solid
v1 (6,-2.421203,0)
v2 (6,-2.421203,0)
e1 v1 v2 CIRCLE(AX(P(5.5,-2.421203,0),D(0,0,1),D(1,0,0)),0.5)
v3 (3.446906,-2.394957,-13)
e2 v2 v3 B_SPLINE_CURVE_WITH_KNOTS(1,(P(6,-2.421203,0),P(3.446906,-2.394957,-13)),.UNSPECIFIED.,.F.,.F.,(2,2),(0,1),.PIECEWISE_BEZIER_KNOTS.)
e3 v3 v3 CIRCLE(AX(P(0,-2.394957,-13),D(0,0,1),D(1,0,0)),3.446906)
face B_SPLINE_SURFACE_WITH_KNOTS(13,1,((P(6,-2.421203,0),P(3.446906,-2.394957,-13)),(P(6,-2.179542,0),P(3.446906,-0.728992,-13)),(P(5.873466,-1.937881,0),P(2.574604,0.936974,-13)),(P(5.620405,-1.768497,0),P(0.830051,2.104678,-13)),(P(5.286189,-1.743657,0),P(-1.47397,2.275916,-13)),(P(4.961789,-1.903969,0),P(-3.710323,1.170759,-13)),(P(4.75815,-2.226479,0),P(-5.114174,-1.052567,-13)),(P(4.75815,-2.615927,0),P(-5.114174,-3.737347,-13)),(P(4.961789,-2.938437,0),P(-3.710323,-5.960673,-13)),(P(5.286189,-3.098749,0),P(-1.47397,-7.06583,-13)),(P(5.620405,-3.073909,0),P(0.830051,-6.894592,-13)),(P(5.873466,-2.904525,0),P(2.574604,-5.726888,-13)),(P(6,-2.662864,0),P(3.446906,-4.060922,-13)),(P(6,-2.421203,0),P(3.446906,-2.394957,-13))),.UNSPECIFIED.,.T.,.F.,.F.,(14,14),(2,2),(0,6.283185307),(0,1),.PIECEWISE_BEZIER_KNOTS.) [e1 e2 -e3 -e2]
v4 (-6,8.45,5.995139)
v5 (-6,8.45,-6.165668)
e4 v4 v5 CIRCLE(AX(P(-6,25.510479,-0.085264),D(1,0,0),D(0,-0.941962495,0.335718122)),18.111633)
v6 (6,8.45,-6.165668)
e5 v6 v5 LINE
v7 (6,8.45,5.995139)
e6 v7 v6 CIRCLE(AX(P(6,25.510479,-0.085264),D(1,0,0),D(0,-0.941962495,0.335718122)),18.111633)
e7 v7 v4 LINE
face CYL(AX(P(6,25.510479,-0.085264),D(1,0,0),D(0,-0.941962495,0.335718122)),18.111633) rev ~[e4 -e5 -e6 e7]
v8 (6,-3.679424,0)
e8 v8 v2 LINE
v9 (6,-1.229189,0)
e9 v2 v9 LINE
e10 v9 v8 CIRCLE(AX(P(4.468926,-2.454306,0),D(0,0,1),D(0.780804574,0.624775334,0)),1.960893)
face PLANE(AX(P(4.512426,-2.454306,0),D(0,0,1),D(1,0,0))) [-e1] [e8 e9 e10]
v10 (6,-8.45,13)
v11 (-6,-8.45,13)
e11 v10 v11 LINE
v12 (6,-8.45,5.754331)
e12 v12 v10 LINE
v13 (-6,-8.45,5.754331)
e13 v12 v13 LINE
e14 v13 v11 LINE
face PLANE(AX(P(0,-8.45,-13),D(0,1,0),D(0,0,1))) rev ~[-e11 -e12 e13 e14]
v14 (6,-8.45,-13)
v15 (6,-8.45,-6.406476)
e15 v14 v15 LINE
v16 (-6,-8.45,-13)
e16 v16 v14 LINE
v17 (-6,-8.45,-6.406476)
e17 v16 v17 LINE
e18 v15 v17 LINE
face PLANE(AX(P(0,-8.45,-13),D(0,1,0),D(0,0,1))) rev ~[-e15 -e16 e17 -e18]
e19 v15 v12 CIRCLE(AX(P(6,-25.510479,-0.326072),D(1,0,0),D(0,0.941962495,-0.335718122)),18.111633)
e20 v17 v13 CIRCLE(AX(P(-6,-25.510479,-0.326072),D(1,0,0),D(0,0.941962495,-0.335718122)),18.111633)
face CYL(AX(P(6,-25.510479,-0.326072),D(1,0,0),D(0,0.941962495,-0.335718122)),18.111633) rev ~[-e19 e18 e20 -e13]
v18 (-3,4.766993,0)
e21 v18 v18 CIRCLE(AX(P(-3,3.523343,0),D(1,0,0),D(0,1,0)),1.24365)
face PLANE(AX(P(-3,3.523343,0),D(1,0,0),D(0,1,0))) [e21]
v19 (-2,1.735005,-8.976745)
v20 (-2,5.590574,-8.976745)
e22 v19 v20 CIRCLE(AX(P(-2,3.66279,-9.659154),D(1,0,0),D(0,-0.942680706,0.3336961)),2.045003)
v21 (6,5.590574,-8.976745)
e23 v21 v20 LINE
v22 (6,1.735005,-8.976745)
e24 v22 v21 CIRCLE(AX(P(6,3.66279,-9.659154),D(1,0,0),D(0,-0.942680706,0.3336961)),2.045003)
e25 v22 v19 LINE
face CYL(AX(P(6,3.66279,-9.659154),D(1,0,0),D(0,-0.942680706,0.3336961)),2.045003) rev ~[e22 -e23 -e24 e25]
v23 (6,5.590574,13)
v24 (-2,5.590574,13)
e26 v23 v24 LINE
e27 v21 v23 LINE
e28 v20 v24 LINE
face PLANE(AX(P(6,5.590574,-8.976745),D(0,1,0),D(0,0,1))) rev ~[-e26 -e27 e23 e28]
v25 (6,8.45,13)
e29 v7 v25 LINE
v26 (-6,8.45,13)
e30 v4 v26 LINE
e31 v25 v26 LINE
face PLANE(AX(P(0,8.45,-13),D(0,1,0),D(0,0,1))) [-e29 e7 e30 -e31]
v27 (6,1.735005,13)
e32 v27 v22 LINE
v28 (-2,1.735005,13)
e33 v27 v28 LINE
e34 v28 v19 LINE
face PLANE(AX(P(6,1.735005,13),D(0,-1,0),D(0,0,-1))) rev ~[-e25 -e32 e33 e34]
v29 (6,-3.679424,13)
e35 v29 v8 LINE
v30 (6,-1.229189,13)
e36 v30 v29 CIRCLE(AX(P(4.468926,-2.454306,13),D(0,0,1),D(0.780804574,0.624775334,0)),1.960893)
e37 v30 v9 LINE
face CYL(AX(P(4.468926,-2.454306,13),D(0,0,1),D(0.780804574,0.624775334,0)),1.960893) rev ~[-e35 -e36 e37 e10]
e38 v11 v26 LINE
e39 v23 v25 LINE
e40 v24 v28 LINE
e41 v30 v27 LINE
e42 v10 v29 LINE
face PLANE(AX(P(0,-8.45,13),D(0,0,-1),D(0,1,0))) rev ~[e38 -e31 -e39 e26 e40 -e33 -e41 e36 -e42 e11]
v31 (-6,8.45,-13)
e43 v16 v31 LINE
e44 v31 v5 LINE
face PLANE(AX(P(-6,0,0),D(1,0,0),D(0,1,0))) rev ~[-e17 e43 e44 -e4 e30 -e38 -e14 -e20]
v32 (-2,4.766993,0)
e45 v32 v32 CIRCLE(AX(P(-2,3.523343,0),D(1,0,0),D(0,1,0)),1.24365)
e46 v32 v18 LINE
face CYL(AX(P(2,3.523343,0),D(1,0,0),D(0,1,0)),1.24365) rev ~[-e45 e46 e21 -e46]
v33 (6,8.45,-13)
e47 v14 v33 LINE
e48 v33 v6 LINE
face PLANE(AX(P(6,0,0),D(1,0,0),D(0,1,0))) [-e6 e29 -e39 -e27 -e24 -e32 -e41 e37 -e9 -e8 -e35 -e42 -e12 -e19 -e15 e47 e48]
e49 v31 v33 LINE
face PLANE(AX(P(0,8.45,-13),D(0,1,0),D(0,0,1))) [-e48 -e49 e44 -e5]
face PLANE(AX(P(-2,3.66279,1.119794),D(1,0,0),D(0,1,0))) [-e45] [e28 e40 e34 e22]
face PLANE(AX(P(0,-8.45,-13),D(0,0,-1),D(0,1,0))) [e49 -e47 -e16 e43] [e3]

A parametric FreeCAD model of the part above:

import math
import FreeCAD as App
import Part
import Sketcher

V = App.Vector

doc = App.newDocument("Part")
body = doc.addObject("PartDesign::Body", "Body")

# Sketch on YZ plane
sketch1 = body.newObject("Sketcher::SketchObject", "Sketch")
sketch1.AttachmentSupport = (doc.getObject("YZ_Plane"), [""])
sketch1.MapMode = "FlatFace"
sketch1.addGeometry(Part.LineSegment(V(-8, 13, 0), V(-8, -13, 0)), False)
sketch1.addGeometry(Part.LineSegment(V(-8, -13, 0), V(8, -13, 0)), False)
sketch1.addGeometry(Part.LineSegment(V(8, -13, 0), V(8, 13, 0)), False)
sketch1.addGeometry(Part.LineSegment(V(8, 13, 0), V(-8, 13, 0)), False)
sketch1.addConstraint(Sketcher.Constraint("Coincident", 0, 2, 1, 1))
sketch1.addConstraint(Sketcher.Constraint("Coincident", 1, 2, 2, 1))
sketch1.addConstraint(Sketcher.Constraint("Coincident", 2, 2, 3, 1))
sketch1.addConstraint(Sketcher.Constraint("Coincident", 3, 2, 0, 1))
sketch1.addConstraint(Sketcher.Constraint("Vertical", 0))
sketch1.addConstraint(Sketcher.Constraint("Horizontal", 1))
sketch1.addConstraint(Sketcher.Constraint("Vertical", 2))
sketch1.addConstraint(Sketcher.Constraint("Horizontal", 3))
sketch1.addConstraint(Sketcher.Constraint("Symmetric", 0, 2, 2, 2, -1, 1))
sketch1.addConstraint(Sketcher.Constraint("DistanceY", 0, 2, 0, 1, 26.0))
sketch1.addConstraint(Sketcher.Constraint("DistanceX", 1, 1, 1, 2, 16.9))
pad1 = body.newObject("PartDesign::Pad", "Pad")
pad1.Profile = sketch1
pad1.Length = 12
pad1.Midplane = True

# Sketch on XY plane
sketch2 = body.newObject("Sketcher::SketchObject", "Sketch001")
sketch2.AttachmentSupport = (doc.getObject("XY_Plane"), [""])
sketch2.MapMode = "FlatFace"
sketch2.AttachmentOffset = App.Placement(V(0, 0, 13), App.Rotation())
sketch2.addGeometry(Part.LineSegment(V(6, -3.7, 0), V(6, -1.2, 0)), False)
sketch2.addGeometry(Part.ArcOfCircle(Part.Circle(V(4.5, -2.5, 0), V(0, 0, 1), 2), math.radians(39), math.radians(321)), False)
sketch2.addConstraint(Sketcher.Constraint("Coincident", 0, 1, 1, 2))
sketch2.addConstraint(Sketcher.Constraint("Coincident", 1, 1, 0, 2))
sketch2.addConstraint(Sketcher.Constraint("Vertical", 0))
sketch2.addConstraint(Sketcher.Constraint("DistanceX", -1, 1, 0, 1, 6.0))
sketch2.addConstraint(Sketcher.Constraint("Radius", 1, 1.960893))
sketch2.addConstraint(Sketcher.Constraint("DistanceY", 0, 1, 0, 2, 2.450235))
sketch2.addConstraint(Sketcher.Constraint("DistanceY", 1, 1, -1, 1, 1.229189))
pocket1 = body.newObject("PartDesign::Pocket", "Pocket")
pocket1.Profile = sketch2
pocket1.Length = 13

# Sketch on XY plane
sketch3 = body.newObject("Sketcher::SketchObject", "Sketch002")
sketch3.AttachmentSupport = (doc.getObject("XY_Plane"), [""])
sketch3.MapMode = "FlatFace"
sketch3.addGeometry(Part.Circle(V(5.5, -2.4, 0), V(0, 0, 1), 0.5), False)
sketch3.addConstraint(Sketcher.Constraint("Diameter", 0, 1.0))
sketch3.addConstraint(Sketcher.Constraint("DistanceX", -1, 1, 0, 3, 5.5))
sketch3.addConstraint(Sketcher.Constraint("DistanceY", 0, 3, -1, 1, 2.421203))

# Sketch on XY plane
sketch4 = body.newObject("Sketcher::SketchObject", "Sketch003")
sketch4.AttachmentSupport = (doc.getObject("XY_Plane"), [""])
sketch4.MapMode = "FlatFace"
sketch4.AttachmentOffset = App.Placement(V(0, 0, -13), App.Rotation())
sketch4.addGeometry(Part.Circle(V(0, -2.4, 0), V(0, 0, 1), 3.4), False)
sketch4.addConstraint(Sketcher.Constraint("PointOnObject", 0, 3, -2))
sketch4.addConstraint(Sketcher.Constraint("Diameter", 0, 6.893812))
sketch4.addConstraint(Sketcher.Constraint("DistanceY", 0, 3, -1, 1, 2.394957))

subtractiveloft = body.newObject("PartDesign::SubtractiveLoft", "SubtractiveLoft")
subtractiveloft.Profile = sketch3
subtractiveloft.Sections = [sketch4]

# Sketch on YZ plane
sketch5 = body.newObject("Sketcher::SketchObject", "Sketch004")
sketch5.AttachmentSupport = (doc.getObject("YZ_Plane"), [""])
sketch5.MapMode = "FlatFace"
sketch5.AttachmentOffset = App.Placement(V(0, 0, 6), App.Rotation())
sketch5.addGeometry(Part.LineSegment(V(8, -6, 0), V(8, 6, 0)), False)
sketch5.addGeometry(Part.ArcOfCircle(Part.Circle(V(26, 0, 0), V(0, 0, 1), 18), math.radians(160), math.radians(200)), False)
sketch5.addGeometry(Part.LineSegment(V(-8, 6, 0), V(-8, -6, 0)), False)
sketch5.addGeometry(Part.ArcOfCircle(Part.Circle(V(-26, 0, 0), V(0, 0, 1), 18), math.radians(-20), math.radians(20)), False)
sketch5.addConstraint(Sketcher.Constraint("Coincident", 0, 1, 1, 2))
sketch5.addConstraint(Sketcher.Constraint("Coincident", 1, 1, 0, 2))
sketch5.addConstraint(Sketcher.Constraint("Coincident", 2, 1, 3, 2))
sketch5.addConstraint(Sketcher.Constraint("Coincident", 3, 1, 2, 2))
sketch5.addConstraint(Sketcher.Constraint("Vertical", 0))
sketch5.addConstraint(Sketcher.Constraint("Vertical", 2))
sketch5.addConstraint(Sketcher.Constraint("Equal", 1, 3))
sketch5.addConstraint(Sketcher.Constraint("Equal", 0, 2))
sketch5.addConstraint(Sketcher.Constraint("DistanceX", 2, 1, 1, 1, 16.9))
sketch5.addConstraint(Sketcher.Constraint("DistanceX", -1, 1, 0, 1, 8.45))
sketch5.addConstraint(Sketcher.Constraint("DistanceY", 0, 1, 2, 1, 11.919999))
sketch5.addConstraint(Sketcher.Constraint("Radius", 1, 18.111633))
sketch5.addConstraint(Sketcher.Constraint("DistanceY", 0, 1, 0, 2, 12.160807))
sketch5.addConstraint(Sketcher.Constraint("DistanceY", -1, 1, 1, 1, 5.995139))
pocket2 = body.newObject("PartDesign::Pocket", "Pocket001")
pocket2.Profile = sketch5
pocket2.Type = "ThroughAll"

# Sketch on YZ plane
sketch6 = body.newObject("Sketcher::SketchObject", "Sketch005")
sketch6.AttachmentSupport = (doc.getObject("YZ_Plane"), [""])
sketch6.MapMode = "FlatFace"
sketch6.AttachmentOffset = App.Placement(V(0, 0, 6), App.Rotation())
sketch6.addGeometry(Part.LineSegment(V(1.7, 13, 0), V(1.7, -9, 0)), False)
sketch6.addGeometry(Part.ArcOfCircle(Part.Circle(V(3.7, -9.7, 0), V(0, 0, 1), 2), math.radians(161), math.radians(379)), False)
sketch6.addGeometry(Part.LineSegment(V(5.6, -9, 0), V(5.6, 13, 0)), False)
sketch6.addGeometry(Part.LineSegment(V(5.6, 13, 0), V(1.7, 13, 0)), False)
sketch6.addConstraint(Sketcher.Constraint("Coincident", 0, 2, 1, 1))
sketch6.addConstraint(Sketcher.Constraint("Coincident", 1, 2, 2, 1))
sketch6.addConstraint(Sketcher.Constraint("Coincident", 2, 2, 3, 1))
sketch6.addConstraint(Sketcher.Constraint("Coincident", 3, 2, 0, 1))
sketch6.addConstraint(Sketcher.Constraint("Vertical", 0))
sketch6.addConstraint(Sketcher.Constraint("Vertical", 2))
sketch6.addConstraint(Sketcher.Constraint("Horizontal", 3))
sketch6.addConstraint(Sketcher.Constraint("Horizontal", 0, 2, 1, 2))
sketch6.addConstraint(Sketcher.Constraint("DistanceY", -1, 1, 2, 2, 13.0))
sketch6.addConstraint(Sketcher.Constraint("Radius", 1, 2.045003))
sketch6.addConstraint(Sketcher.Constraint("DistanceX", 3, 2, 3, 1, 3.855569))
sketch6.addConstraint(Sketcher.Constraint("DistanceY", 0, 2, 0, 1, 21.976745))
sketch6.addConstraint(Sketcher.Constraint("DistanceX", -1, 1, 1, 3, 3.66279))
pocket3 = body.newObject("PartDesign::Pocket", "Pocket002")
pocket3.Profile = sketch6
pocket3.Length = 8

# Sketch on YZ plane
sketch7 = body.newObject("Sketcher::SketchObject", "Sketch006")
sketch7.AttachmentSupport = (doc.getObject("YZ_Plane"), [""])
sketch7.MapMode = "FlatFace"
sketch7.AttachmentOffset = App.Placement(V(0, 0, 2), App.Rotation())
sketch7.addGeometry(Part.Circle(V(3.5, 0, 0), V(0, 0, 1), 1.2), False)
sketch7.addConstraint(Sketcher.Constraint("PointOnObject", 0, 3, -1))
sketch7.addConstraint(Sketcher.Constraint("Diameter", 0, 2.4873))
sketch7.addConstraint(Sketcher.Constraint("DistanceX", -1, 1, 0, 3, 3.523343))
pocket4 = body.newObject("PartDesign::Pocket", "Pocket003")
pocket4.Profile = sketch7
pocket4.Length = 5

doc.recompute()
